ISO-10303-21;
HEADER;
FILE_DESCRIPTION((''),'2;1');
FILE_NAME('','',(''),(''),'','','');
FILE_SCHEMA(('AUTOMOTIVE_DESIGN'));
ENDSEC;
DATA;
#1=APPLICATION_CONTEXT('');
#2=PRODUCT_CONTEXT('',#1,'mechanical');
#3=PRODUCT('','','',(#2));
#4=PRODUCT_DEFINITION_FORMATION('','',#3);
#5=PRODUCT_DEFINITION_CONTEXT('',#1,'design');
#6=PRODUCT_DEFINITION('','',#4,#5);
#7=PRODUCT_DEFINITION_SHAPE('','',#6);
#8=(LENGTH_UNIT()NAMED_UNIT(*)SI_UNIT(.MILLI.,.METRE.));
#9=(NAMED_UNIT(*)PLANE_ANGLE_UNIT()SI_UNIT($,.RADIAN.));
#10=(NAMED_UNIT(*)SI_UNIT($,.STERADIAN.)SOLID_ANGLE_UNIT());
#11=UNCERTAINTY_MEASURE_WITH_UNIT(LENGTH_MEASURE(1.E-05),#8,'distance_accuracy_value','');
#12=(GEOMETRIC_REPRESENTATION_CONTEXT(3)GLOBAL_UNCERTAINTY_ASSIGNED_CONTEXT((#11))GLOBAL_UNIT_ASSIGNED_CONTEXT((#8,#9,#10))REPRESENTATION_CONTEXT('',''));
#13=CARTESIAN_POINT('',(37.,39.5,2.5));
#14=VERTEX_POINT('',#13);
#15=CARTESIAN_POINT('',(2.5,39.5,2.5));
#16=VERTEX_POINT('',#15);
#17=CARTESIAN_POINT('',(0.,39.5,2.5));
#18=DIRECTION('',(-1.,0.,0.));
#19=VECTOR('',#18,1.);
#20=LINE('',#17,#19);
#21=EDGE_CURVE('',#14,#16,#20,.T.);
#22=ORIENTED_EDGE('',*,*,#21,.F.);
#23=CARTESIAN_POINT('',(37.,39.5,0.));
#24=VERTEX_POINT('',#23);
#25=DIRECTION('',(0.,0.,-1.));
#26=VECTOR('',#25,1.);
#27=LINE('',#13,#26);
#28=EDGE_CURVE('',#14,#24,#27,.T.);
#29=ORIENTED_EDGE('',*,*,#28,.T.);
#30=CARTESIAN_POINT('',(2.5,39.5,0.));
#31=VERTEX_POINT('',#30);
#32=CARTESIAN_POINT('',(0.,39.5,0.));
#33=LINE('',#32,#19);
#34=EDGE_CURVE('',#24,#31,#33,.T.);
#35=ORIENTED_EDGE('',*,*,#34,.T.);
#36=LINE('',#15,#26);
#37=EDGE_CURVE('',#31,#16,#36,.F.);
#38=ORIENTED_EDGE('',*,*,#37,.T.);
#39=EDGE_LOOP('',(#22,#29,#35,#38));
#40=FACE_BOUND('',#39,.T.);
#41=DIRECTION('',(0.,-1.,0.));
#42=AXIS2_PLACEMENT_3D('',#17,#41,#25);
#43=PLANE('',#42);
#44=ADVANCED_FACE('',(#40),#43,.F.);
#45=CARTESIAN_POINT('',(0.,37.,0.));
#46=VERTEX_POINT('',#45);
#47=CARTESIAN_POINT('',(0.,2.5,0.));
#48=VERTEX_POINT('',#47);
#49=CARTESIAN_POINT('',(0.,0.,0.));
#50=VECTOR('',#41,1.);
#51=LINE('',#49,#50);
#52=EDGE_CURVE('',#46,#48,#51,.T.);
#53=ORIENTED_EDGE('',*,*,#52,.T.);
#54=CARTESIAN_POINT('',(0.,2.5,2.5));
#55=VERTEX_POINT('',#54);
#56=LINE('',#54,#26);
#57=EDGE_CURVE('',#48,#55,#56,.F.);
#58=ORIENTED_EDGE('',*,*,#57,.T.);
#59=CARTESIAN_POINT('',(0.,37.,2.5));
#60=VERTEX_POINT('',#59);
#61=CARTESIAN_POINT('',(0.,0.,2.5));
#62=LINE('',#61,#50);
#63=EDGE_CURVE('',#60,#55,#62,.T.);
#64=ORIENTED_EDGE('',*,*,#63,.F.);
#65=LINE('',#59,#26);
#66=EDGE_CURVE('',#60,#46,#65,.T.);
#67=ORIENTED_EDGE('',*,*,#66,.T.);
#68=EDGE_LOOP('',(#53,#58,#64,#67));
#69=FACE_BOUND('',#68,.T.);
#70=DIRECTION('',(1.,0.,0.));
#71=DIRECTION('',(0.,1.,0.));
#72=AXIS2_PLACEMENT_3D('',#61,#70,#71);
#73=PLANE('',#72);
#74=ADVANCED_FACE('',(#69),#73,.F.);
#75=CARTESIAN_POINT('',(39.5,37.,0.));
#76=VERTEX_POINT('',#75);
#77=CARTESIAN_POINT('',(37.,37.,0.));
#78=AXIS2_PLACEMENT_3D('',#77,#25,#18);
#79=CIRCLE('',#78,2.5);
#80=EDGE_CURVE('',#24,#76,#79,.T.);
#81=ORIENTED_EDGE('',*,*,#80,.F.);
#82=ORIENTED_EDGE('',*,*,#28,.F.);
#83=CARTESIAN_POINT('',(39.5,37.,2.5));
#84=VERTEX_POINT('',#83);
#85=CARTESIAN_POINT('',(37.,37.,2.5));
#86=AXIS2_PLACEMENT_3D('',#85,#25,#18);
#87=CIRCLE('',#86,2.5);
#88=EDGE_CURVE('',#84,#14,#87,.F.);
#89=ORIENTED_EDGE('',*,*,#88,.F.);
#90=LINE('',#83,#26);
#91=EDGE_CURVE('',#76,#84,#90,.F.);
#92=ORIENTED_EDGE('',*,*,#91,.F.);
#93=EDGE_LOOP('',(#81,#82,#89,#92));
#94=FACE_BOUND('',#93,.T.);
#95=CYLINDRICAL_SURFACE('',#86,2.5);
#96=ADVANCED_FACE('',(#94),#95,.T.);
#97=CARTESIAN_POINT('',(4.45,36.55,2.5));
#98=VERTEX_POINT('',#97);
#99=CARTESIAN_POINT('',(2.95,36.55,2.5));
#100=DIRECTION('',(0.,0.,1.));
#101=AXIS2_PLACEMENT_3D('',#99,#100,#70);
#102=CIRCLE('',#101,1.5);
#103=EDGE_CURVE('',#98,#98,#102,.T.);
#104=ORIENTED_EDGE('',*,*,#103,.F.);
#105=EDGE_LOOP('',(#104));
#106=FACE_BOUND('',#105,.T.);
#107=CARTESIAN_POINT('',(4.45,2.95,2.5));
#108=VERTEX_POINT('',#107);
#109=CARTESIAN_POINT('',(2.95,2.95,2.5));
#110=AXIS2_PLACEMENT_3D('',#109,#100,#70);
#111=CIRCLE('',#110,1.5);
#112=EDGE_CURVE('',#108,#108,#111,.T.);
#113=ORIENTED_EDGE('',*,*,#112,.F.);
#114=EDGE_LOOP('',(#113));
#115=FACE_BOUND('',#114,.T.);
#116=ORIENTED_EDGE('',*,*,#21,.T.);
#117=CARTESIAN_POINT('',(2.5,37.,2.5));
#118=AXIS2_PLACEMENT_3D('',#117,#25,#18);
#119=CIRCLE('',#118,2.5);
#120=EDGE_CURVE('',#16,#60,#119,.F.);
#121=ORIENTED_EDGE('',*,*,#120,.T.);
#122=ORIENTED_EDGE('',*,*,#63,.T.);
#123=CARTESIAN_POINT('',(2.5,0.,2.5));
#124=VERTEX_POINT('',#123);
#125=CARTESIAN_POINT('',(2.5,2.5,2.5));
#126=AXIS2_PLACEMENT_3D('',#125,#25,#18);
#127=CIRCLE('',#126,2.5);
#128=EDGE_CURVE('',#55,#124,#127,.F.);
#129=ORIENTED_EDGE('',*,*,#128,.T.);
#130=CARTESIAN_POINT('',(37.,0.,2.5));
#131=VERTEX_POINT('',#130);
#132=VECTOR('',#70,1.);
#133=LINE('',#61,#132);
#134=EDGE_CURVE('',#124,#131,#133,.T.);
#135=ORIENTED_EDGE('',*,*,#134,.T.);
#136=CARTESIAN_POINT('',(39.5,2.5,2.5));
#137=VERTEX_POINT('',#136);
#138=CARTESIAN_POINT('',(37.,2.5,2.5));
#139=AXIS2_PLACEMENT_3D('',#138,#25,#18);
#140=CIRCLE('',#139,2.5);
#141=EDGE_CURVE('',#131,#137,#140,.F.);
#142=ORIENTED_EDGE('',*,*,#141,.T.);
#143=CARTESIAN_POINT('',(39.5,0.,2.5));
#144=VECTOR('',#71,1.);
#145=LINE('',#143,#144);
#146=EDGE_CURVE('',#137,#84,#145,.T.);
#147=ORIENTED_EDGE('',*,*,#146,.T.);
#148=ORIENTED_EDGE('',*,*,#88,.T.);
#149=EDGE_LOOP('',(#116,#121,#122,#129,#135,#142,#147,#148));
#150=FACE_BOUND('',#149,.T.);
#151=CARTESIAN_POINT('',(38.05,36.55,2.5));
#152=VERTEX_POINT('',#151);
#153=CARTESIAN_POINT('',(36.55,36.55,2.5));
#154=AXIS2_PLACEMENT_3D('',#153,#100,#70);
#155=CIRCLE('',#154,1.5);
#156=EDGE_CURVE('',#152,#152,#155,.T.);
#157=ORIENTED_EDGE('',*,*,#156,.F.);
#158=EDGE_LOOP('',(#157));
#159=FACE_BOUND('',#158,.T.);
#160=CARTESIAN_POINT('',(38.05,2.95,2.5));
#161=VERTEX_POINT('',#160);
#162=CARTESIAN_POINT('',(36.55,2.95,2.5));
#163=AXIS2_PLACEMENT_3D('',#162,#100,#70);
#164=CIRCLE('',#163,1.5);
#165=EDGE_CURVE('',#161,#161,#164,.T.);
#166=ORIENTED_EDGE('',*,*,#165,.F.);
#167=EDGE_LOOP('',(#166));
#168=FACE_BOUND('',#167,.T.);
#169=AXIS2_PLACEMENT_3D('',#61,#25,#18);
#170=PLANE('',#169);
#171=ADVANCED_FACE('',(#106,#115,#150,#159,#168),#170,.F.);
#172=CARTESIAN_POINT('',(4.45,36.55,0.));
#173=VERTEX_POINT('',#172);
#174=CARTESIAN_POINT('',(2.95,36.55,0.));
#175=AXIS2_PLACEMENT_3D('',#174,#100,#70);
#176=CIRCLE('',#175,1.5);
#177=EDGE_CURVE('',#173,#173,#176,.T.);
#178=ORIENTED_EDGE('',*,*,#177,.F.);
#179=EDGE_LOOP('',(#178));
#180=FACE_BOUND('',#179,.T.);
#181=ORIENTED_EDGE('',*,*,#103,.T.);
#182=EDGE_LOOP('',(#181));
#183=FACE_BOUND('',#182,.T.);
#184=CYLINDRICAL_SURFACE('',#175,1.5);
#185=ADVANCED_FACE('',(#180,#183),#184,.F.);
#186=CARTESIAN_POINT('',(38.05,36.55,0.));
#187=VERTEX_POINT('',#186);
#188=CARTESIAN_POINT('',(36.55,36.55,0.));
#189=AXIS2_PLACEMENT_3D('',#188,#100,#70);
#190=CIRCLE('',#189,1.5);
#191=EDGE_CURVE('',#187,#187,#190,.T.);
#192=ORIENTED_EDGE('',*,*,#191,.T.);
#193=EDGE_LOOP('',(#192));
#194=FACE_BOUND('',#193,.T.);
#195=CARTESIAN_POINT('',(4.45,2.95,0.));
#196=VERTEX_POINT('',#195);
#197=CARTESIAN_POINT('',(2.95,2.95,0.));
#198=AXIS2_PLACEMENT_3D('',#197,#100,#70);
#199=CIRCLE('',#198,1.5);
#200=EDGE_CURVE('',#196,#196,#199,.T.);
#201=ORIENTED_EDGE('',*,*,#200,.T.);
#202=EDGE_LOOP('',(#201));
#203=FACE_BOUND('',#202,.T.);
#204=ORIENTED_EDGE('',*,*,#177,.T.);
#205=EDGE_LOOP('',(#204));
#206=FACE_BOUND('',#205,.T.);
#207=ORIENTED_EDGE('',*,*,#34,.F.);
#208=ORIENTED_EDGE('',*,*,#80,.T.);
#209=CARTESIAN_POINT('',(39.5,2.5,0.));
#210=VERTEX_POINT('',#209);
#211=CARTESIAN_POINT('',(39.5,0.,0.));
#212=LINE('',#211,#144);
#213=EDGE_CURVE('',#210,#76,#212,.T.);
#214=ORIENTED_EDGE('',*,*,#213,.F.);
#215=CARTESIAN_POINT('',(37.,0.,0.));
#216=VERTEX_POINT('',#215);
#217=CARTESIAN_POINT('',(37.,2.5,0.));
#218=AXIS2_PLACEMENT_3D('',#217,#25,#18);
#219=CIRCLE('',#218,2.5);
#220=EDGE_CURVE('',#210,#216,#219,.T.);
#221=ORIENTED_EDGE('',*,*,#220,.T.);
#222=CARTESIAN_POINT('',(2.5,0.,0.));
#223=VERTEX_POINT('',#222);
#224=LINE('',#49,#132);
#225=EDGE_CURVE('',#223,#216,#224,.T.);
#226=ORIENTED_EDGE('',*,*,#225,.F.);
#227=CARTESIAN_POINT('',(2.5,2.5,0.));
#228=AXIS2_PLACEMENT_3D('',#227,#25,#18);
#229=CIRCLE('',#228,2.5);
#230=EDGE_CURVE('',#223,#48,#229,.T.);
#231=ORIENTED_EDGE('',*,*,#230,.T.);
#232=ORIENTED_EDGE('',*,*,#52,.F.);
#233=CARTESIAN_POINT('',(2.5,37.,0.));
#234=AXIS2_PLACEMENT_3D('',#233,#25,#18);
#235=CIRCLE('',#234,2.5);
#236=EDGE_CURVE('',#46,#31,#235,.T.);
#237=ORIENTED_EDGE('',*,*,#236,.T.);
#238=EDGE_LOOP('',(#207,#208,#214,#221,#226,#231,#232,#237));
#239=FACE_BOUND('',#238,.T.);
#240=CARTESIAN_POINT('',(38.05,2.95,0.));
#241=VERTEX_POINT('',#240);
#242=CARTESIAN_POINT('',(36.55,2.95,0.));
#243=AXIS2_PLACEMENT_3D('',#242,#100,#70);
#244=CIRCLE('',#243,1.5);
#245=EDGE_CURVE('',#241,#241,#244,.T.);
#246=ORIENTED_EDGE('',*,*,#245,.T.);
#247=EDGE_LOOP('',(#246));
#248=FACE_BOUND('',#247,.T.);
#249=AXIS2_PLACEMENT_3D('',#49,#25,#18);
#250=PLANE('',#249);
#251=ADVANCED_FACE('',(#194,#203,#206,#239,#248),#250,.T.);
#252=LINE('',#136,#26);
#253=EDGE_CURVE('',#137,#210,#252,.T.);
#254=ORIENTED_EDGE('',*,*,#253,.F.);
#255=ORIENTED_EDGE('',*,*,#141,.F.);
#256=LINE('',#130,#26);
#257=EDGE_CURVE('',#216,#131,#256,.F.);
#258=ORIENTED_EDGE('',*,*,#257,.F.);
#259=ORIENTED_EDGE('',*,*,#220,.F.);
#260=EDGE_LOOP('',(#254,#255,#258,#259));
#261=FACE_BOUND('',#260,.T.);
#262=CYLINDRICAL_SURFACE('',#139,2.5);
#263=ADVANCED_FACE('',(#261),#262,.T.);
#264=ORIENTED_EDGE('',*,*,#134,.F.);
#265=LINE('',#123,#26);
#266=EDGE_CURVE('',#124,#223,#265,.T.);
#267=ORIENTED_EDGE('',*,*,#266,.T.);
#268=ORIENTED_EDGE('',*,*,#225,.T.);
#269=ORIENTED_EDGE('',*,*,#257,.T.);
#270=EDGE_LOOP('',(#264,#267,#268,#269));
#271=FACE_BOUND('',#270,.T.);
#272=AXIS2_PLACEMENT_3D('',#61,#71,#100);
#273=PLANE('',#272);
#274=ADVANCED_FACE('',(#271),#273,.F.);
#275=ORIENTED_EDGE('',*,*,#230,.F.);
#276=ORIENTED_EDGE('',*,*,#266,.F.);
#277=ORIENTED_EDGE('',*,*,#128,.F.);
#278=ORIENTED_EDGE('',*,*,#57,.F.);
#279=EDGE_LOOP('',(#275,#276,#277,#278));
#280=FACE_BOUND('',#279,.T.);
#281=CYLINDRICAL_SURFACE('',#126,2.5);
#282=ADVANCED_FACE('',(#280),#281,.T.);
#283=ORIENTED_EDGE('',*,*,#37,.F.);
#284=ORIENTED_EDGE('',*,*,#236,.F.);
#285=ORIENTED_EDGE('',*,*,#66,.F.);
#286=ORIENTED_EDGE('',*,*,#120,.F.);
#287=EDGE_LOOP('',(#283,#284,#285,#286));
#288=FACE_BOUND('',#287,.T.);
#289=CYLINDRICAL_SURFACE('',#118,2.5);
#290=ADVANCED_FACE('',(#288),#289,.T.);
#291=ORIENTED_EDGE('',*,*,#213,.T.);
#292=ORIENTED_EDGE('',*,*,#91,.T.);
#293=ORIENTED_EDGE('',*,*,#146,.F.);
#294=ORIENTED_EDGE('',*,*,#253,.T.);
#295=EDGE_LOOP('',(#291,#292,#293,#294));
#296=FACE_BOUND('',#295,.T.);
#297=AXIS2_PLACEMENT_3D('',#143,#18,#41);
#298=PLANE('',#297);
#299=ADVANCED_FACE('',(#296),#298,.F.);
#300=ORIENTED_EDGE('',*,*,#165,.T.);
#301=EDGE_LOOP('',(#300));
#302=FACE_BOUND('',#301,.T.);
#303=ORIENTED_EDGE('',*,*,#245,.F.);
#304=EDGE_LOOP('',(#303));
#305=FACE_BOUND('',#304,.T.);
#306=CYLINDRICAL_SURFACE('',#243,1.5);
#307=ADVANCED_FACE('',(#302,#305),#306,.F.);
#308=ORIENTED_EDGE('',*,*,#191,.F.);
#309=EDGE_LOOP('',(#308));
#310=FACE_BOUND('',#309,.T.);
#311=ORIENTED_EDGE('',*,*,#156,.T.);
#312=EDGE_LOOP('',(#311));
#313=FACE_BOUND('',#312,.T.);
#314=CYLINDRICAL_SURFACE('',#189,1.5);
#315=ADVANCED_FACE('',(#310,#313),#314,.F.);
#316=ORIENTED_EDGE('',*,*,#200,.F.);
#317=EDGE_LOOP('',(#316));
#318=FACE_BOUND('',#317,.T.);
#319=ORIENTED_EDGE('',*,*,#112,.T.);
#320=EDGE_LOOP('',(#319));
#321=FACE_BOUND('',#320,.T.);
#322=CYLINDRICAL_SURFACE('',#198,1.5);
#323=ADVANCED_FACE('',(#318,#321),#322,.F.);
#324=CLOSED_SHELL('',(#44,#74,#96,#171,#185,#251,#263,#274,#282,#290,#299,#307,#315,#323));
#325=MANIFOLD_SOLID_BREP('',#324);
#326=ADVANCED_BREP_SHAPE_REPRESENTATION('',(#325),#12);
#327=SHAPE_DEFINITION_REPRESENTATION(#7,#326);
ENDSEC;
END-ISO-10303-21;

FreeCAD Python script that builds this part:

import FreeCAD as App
import Part
import Sketcher


def edges_at(feature, points):
    """Names of the edges that pass closest to the given points."""
    edges = feature.Shape.Edges
    near = lambda p: min(range(len(edges)), key=lambda i: edges[i].distToShape(Part.Vertex(*p))[0])
    return sorted({f"Edge{near(p) + 1}" for p in points})


def add_polygon(sketch, points):
    """Adds a closed chain of lines whose ends are joined by coincident constraints."""
    first, n = sketch.GeometryCount, len(points)
    for a, b in zip(points, points[1:] + points[:1]):
        sketch.addGeometry(Part.LineSegment(App.Vector(*a, 0), App.Vector(*b, 0)), False)
    for i in range(n):
        sketch.addConstraint(Sketcher.Constraint("Coincident", first + i, 2, first + (i + 1) % n, 1))

doc = App.newDocument("Part")
body = doc.addObject("PartDesign::Body", "Body")

# Sketch on XY plane
sketch1 = body.newObject("Sketcher::SketchObject", "Sketch")
sketch1.AttachmentSupport = (doc.getObject("XY_Plane"), [""])
sketch1.MapMode = "FlatFace"
add_polygon(sketch1, [(0, 40), (0, 0), (40, 0), (40, 40)])  # lines 0-3
sketch1.addConstraint([
    Sketcher.Constraint("Vertical", 0),
    Sketcher.Constraint("Horizontal", 1),
    Sketcher.Constraint("Vertical", 2),
    Sketcher.Constraint("Horizontal", 3),
    Sketcher.Constraint("Coincident", 0, 2, -1, 1),
    Sketcher.Constraint("Equal", 3, 0),
    Sketcher.Constraint("DistanceX", 1, 1, 1, 2, 39.5),
])
pad1 = body.newObject("PartDesign::Pad", "Pad")
pad1.Profile = sketch1
pad1.Length = 2.5

# Sketch on XY plane
sketch2 = body.newObject("Sketcher::SketchObject", "Sketch001")
sketch2.AttachmentSupport = (doc.getObject("XY_Plane"), [""])
sketch2.MapMode = "FlatFace"
sketch2.AttachmentOffset = App.Placement(App.Vector(0, 0, 2.5), App.Rotation())
sketch2.addGeometry([
    Part.Circle(App.Vector(3, 36.5, 0), App.Vector(0, 0, 1), 1.5),
    Part.Circle(App.Vector(36.5, 36.5, 0), App.Vector(0, 0, 1), 1.5),
    Part.Circle(App.Vector(36.5, 3, 0), App.Vector(0, 0, 1), 1.5),
    Part.Circle(App.Vector(3, 3, 0), App.Vector(0, 0, 1), 1.5),
], False)
sketch2.addConstraint([
    Sketcher.Constraint("Equal", 0, 1),
    Sketcher.Constraint("Equal", 1, 2),
    Sketcher.Constraint("Equal", 2, 3),
    Sketcher.Constraint("Horizontal", 0, 3, 1, 3),
    Sketcher.Constraint("Horizontal", 2, 3, 3, 3),
    Sketcher.Constraint("Vertical", 1, 3, 2, 3),
    Sketcher.Constraint("Vertical", 0, 3, 3, 3),
    Sketcher.Constraint("Diameter", 0, 3.0),
    Sketcher.Constraint("DistanceX", 0, 3, 1, 3, 33.6),
    Sketcher.Constraint("DistanceY", 2, 3, 1, 3, 33.6),
    Sketcher.Constraint("DistanceX", -1, 1, 0, 3, 2.95),
    Sketcher.Constraint("DistanceY", -1, 1, 0, 3, 36.55),
])
pocket1 = body.newObject("PartDesign::Pocket", "Pocket")
pocket1.Profile = sketch2
pocket1.Length = 2.5
doc.recompute()

fillet = body.newObject("PartDesign::Fillet", "Fillet")
fillet.Base = (pocket1, edges_at(pocket1, [
    (0, 39.5, 1.25),
    (39.5, 39.5, 1.25),
    (39.5, 0, 1.25),
    (0, 0, 1.25),
]))
fillet.Radius = 2.5

doc.recompute()
